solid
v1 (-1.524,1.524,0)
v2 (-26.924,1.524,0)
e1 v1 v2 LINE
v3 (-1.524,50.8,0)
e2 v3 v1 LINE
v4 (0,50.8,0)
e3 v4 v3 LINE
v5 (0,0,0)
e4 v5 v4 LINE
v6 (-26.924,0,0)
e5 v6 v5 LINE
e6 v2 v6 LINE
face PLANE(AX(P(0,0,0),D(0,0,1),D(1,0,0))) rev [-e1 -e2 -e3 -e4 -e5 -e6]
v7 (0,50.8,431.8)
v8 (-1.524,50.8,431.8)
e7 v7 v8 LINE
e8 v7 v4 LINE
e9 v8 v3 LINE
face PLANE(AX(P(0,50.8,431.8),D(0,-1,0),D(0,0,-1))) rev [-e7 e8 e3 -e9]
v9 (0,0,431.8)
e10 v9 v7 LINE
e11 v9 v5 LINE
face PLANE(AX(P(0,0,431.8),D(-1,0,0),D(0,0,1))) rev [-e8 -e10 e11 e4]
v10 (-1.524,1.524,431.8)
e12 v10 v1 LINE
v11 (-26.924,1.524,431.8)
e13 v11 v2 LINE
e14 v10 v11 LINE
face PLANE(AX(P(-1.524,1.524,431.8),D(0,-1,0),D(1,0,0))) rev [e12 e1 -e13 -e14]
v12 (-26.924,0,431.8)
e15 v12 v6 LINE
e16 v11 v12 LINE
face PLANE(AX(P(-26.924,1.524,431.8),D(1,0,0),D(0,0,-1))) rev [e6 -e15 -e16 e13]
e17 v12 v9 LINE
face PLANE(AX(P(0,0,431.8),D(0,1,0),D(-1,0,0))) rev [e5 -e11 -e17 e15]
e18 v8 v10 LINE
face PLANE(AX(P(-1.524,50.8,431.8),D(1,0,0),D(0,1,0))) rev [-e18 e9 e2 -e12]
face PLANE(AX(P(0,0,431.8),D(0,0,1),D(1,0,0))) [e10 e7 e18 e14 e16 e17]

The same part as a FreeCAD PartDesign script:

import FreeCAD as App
import Part
import Sketcher
Q = App.Units.Quantity

doc = App.newDocument("Part")
body = doc.addObject("PartDesign::Body", "Body")

# Sketch on XY plane
sketch1 = body.newObject("Sketcher::SketchObject", "Sketch")
sketch1.AttachmentSupport = (doc.getObject("XY_Plane"), [""])
sketch1.MapMode = "FlatFace"
sketch1.addGeometry(Part.LineSegment(App.Vector(-26.9, 0, 0), App.Vector(0, 0, 0)), False)
sketch1.addGeometry(Part.LineSegment(App.Vector(0, 0, 0), App.Vector(0, 50.8, 0)), False)
sketch1.addGeometry(Part.LineSegment(App.Vector(0, 50.8, 0), App.Vector(-1.5, 50.8, 0)), False)
sketch1.addGeometry(Part.LineSegment(App.Vector(-1.5, 50.8, 0), App.Vector(-1.5, 1.5, 0)), False)
sketch1.addGeometry(Part.LineSegment(App.Vector(-1.5, 1.5, 0), App.Vector(-26.9, 1.5, 0)), False)
sketch1.addGeometry(Part.LineSegment(App.Vector(-26.9, 1.5, 0), App.Vector(-26.9, 0, 0)), False)
sketch1.addConstraint(Sketcher.Constraint("Coincident", 0, 2, 1, 1))
sketch1.addConstraint(Sketcher.Constraint("Coincident", 1, 2, 2, 1))
sketch1.addConstraint(Sketcher.Constraint("Coincident", 2, 2, 3, 1))
sketch1.addConstraint(Sketcher.Constraint("Coincident", 3, 2, 4, 1))
sketch1.addConstraint(Sketcher.Constraint("Coincident", 4, 2, 5, 1))
sketch1.addConstraint(Sketcher.Constraint("Coincident", 5, 2, 0, 1))
sketch1.addConstraint(Sketcher.Constraint("Horizontal", 0))
sketch1.addConstraint(Sketcher.Constraint("Vertical", 1))
sketch1.addConstraint(Sketcher.Constraint("Horizontal", 2))
sketch1.addConstraint(Sketcher.Constraint("Vertical", 3))
sketch1.addConstraint(Sketcher.Constraint("Horizontal", 4))
sketch1.addConstraint(Sketcher.Constraint("Vertical", 5))
sketch1.addConstraint(Sketcher.Constraint("Coincident", 0, 2, -1, 1))
sketch1.addConstraint(Sketcher.Constraint("Equal", 2, 5))
sketch1.addConstraint(Sketcher.Constraint("DistanceX", 4, 2, 4, 1, Q("1 in")))
sketch1.addConstraint(Sketcher.Constraint("DistanceY", 1, 1, 1, 2, Q("2 in")))
sketch1.addConstraint(Sketcher.Constraint("DistanceX", 0, 1, 0, 2, Q("1.06 in")))
pad1 = body.newObject("PartDesign::Pad", "Pad")
pad1.Profile = sketch1
pad1.Length = Q("17 in")

doc.recompute()
